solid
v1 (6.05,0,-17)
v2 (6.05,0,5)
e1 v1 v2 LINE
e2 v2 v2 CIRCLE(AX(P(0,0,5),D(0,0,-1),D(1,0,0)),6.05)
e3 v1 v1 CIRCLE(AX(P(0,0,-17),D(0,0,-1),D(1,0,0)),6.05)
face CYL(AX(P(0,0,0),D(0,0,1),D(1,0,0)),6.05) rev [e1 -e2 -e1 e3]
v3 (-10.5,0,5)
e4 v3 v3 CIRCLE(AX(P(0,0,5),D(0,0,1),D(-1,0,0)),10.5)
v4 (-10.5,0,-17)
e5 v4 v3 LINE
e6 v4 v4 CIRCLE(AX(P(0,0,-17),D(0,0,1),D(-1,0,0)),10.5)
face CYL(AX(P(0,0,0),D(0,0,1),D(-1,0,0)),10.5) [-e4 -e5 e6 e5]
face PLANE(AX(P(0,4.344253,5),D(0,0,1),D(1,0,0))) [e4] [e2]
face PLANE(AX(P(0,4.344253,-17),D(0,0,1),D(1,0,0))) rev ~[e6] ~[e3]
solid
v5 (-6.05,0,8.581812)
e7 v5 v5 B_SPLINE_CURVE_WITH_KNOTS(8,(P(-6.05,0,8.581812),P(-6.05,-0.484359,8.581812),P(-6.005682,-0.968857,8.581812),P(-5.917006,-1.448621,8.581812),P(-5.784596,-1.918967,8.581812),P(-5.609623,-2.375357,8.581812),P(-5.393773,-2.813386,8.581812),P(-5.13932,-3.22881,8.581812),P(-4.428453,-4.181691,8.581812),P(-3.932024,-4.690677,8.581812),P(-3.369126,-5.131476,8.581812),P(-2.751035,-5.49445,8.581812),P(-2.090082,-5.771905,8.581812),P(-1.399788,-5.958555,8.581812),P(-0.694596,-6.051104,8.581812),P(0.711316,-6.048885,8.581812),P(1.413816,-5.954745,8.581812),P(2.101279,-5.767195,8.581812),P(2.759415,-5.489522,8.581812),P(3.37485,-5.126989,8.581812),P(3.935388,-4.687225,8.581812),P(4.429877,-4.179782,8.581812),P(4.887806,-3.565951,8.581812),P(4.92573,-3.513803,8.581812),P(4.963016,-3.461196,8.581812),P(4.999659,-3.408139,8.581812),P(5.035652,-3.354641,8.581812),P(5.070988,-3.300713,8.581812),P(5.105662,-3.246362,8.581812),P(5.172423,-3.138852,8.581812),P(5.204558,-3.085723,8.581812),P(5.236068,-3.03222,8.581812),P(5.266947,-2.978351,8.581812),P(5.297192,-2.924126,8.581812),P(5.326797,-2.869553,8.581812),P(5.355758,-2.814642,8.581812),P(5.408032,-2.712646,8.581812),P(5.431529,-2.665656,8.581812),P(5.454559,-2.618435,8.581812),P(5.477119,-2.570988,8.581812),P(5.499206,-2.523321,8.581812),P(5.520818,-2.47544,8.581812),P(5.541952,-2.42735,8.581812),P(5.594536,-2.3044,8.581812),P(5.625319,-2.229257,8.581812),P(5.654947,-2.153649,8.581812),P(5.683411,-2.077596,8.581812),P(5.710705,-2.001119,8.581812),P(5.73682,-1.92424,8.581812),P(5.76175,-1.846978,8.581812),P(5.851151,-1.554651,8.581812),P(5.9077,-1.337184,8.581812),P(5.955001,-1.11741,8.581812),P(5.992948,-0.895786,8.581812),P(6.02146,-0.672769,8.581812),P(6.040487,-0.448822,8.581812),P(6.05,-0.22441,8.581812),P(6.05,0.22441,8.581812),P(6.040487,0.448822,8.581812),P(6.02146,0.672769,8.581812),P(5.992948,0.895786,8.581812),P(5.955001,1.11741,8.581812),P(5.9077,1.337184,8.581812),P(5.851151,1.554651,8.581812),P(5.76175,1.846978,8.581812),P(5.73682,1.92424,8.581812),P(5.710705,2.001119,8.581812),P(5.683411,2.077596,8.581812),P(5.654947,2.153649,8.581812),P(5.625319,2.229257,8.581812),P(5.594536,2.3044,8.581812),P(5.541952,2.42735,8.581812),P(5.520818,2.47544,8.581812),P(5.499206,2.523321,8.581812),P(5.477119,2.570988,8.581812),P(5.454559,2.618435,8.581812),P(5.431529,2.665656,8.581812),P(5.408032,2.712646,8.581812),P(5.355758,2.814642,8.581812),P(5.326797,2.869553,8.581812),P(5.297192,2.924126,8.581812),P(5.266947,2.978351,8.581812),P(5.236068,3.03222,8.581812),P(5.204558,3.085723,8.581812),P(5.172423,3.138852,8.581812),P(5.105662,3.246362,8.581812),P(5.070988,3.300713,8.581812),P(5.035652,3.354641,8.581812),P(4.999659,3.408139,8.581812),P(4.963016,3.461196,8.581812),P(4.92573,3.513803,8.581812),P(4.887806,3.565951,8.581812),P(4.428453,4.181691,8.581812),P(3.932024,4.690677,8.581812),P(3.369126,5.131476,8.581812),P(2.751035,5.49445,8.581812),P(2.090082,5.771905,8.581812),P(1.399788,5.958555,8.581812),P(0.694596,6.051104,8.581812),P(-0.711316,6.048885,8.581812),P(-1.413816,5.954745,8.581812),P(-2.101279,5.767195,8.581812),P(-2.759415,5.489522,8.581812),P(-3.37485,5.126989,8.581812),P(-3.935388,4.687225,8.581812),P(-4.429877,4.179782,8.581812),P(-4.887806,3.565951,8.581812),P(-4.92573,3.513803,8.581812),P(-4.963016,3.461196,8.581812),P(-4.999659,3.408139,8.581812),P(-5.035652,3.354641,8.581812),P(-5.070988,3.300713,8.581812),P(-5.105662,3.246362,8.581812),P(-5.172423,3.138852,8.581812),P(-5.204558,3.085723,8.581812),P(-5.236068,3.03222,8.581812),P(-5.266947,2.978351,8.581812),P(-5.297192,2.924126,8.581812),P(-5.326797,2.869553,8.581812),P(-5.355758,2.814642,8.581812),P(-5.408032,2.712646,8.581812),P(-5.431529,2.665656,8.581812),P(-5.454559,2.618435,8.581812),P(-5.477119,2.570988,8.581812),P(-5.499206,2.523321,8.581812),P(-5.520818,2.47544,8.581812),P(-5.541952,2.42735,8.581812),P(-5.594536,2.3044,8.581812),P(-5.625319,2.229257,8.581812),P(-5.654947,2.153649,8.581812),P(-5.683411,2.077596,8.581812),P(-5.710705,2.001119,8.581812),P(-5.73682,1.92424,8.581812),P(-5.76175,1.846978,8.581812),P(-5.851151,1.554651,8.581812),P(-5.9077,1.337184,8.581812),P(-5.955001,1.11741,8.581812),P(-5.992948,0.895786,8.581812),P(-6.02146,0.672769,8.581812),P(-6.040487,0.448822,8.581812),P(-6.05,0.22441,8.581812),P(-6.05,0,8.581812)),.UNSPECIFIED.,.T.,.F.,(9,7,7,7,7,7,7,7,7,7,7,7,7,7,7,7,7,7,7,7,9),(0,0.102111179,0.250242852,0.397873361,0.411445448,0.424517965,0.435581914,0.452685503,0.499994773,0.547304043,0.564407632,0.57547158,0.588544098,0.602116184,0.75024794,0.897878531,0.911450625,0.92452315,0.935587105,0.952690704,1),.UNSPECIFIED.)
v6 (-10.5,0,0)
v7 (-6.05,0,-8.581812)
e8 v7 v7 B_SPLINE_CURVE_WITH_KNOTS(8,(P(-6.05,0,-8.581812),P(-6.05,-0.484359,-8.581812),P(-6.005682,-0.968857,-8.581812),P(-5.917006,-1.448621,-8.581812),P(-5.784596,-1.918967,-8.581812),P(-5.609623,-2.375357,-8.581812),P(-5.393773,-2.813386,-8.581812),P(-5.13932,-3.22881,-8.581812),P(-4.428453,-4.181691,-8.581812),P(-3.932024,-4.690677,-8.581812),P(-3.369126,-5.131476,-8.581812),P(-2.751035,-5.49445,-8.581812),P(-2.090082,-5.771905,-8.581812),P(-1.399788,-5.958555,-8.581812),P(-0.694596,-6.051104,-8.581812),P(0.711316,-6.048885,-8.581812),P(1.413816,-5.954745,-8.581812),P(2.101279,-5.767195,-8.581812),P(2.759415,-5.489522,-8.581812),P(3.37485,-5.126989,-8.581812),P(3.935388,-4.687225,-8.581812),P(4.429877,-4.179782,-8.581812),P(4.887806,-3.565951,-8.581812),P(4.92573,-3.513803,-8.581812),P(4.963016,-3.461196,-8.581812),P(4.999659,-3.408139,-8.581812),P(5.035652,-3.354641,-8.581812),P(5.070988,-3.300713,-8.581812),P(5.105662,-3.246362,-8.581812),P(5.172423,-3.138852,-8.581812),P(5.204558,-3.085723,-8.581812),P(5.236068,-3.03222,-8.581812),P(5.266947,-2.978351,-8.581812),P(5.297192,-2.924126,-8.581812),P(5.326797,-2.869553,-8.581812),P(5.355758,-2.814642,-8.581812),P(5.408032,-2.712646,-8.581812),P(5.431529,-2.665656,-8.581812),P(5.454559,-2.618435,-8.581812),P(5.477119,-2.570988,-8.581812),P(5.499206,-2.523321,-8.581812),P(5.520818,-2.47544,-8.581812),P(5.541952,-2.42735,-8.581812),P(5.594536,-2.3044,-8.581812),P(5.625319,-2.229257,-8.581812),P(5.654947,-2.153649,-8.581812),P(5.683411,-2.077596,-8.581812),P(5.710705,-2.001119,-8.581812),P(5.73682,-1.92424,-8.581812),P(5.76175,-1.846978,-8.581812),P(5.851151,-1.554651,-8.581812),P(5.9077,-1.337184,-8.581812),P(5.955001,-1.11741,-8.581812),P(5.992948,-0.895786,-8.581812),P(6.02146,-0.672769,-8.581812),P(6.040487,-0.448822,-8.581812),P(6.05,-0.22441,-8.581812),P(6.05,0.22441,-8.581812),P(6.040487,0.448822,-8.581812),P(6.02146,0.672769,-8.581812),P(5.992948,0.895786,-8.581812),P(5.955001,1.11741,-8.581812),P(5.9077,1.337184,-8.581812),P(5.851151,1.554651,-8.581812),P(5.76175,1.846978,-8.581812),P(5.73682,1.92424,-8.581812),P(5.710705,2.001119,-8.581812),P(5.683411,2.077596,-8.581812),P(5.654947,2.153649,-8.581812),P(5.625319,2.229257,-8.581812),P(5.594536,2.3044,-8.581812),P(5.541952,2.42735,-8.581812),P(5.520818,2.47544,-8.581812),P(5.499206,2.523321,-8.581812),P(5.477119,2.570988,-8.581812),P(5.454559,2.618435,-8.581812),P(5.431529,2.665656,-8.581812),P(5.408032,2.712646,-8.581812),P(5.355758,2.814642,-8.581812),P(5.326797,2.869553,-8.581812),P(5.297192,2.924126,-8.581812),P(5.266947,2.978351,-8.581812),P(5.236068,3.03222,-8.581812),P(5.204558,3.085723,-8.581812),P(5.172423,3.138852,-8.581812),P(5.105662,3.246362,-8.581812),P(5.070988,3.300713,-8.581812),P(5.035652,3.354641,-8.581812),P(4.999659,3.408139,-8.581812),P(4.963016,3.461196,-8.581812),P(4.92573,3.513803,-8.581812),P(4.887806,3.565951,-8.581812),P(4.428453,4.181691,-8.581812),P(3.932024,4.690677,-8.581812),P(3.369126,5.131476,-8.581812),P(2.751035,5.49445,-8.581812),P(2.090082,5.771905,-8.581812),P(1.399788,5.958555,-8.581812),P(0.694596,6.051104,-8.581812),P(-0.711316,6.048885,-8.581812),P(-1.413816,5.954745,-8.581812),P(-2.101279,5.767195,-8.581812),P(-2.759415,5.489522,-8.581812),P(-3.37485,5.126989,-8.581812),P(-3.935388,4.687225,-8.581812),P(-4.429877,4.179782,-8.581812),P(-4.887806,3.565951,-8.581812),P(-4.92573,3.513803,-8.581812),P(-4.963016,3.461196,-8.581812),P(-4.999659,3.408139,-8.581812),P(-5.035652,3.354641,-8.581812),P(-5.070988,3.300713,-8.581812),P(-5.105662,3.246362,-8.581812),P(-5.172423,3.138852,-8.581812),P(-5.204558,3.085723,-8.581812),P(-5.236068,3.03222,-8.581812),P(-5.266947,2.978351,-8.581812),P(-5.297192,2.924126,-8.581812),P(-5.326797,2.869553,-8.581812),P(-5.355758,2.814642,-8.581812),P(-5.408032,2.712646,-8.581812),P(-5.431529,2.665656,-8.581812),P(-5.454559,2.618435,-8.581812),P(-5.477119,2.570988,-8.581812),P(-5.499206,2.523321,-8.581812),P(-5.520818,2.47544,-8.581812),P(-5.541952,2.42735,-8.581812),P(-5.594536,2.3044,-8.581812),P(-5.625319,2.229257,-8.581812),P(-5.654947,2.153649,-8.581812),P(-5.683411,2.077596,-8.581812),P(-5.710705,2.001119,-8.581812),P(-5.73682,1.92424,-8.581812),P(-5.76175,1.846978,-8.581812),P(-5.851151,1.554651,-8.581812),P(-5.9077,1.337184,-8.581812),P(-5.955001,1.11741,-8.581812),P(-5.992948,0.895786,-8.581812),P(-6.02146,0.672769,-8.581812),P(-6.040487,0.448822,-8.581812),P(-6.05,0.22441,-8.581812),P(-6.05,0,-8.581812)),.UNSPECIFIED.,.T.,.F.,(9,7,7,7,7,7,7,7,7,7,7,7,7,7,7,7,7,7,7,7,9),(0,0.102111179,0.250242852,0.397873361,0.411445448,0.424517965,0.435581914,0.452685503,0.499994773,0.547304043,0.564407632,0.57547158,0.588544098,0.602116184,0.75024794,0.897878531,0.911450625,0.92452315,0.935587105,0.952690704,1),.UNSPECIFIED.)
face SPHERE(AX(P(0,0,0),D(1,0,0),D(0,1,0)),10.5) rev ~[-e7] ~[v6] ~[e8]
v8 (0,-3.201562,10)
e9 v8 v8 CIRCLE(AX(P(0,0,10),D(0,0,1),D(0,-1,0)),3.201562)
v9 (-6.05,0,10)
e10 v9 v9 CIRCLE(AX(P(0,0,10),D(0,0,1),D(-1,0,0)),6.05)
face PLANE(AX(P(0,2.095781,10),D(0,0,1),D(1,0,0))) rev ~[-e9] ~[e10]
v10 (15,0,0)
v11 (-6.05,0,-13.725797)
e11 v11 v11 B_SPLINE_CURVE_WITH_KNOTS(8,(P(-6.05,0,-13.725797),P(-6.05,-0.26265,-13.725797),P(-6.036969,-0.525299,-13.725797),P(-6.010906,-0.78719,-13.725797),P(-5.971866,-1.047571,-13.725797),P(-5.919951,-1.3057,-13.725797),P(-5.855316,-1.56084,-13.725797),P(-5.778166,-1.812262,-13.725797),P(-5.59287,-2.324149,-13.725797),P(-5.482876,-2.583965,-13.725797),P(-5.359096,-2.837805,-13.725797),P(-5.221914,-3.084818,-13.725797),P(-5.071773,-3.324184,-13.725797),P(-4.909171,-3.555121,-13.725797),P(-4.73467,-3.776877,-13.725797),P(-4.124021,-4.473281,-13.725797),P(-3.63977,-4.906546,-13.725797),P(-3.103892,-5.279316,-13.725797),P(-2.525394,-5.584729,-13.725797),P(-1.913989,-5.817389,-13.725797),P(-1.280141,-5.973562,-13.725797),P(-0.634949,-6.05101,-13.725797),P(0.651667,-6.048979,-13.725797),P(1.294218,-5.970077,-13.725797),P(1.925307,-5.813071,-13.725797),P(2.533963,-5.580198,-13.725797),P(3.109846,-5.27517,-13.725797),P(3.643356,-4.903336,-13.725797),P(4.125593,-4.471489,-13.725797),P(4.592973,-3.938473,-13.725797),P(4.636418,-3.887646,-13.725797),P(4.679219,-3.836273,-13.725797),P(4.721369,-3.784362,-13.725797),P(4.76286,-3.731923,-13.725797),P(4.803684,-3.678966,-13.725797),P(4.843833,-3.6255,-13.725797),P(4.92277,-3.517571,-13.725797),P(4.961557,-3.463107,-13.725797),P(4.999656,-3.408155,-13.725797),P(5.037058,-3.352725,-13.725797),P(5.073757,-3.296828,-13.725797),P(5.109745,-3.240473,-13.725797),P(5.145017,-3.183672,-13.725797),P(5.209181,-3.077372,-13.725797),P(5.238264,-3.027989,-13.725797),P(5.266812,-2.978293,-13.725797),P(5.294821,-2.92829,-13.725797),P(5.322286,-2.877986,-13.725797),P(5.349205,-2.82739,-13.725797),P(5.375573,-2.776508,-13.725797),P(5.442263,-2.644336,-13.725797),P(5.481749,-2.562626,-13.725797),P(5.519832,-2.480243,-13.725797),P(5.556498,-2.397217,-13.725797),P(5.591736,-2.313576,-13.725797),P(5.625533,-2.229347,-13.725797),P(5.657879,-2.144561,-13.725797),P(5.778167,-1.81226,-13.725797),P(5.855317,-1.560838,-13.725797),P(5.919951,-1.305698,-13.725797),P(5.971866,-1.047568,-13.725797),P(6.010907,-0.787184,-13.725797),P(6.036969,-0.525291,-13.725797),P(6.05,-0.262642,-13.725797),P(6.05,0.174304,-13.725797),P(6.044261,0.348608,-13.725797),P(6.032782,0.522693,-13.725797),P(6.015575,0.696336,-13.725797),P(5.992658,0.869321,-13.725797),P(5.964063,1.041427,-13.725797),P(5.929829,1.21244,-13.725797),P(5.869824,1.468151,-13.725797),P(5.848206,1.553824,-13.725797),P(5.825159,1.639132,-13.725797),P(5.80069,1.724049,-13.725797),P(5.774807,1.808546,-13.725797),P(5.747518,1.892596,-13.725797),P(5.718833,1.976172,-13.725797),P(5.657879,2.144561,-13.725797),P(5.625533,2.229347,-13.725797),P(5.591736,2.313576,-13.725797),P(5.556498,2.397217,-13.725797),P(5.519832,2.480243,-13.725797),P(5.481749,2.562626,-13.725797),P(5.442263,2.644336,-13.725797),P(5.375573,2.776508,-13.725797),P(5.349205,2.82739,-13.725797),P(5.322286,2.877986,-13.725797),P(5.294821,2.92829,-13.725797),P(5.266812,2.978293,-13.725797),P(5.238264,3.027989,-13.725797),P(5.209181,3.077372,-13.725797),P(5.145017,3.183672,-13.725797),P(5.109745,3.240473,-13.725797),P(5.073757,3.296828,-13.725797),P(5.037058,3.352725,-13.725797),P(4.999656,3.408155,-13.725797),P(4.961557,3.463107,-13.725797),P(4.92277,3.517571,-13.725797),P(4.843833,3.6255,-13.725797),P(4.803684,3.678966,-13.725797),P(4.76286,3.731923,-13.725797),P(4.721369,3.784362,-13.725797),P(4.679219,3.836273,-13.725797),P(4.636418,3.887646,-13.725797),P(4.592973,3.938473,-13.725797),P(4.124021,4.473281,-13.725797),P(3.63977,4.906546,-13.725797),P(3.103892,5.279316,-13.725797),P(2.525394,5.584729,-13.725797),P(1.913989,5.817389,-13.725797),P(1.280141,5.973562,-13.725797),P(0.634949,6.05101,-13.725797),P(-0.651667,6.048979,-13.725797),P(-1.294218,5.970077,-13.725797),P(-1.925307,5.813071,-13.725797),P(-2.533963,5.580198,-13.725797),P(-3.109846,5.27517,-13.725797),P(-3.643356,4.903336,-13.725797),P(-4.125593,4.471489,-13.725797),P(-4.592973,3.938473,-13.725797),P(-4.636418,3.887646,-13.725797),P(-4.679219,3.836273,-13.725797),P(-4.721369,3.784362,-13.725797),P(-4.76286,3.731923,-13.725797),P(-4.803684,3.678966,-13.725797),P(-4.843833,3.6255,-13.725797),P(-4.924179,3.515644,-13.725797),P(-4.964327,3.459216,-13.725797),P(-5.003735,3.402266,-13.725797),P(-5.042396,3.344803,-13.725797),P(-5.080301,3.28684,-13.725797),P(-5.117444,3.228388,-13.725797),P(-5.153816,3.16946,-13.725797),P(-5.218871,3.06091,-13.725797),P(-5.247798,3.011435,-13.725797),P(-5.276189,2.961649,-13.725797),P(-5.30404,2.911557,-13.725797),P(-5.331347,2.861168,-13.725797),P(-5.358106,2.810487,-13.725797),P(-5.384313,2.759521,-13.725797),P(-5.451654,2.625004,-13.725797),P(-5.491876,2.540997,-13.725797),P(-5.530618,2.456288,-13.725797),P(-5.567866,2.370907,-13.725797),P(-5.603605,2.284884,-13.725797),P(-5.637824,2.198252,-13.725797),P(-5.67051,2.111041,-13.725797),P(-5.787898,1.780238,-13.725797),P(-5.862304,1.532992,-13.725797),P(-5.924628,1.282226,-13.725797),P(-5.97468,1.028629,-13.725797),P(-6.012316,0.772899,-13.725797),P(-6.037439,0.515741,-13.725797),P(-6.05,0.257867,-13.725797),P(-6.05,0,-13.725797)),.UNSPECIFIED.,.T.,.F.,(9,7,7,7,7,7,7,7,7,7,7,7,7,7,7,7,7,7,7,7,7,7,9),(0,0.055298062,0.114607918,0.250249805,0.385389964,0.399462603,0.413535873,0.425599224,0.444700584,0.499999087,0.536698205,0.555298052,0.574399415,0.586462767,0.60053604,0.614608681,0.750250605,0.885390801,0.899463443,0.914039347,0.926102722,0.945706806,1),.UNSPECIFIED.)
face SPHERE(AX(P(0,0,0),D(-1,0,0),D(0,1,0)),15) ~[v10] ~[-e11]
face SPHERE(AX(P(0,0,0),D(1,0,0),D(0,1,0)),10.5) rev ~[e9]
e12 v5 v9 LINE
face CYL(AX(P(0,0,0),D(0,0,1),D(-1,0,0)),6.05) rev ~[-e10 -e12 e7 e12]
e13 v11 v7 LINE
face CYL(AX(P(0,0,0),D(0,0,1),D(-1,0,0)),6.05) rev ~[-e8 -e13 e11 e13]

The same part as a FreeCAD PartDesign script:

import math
import FreeCAD as App
import Part
import Sketcher
from FreeCAD import Vector
Q = App.Units.Quantity

doc = App.newDocument("Part")
params = doc.addObject("Spreadsheet::Sheet", "Params")
for row, (alias, value) in enumerate([
    ("sketch1_diameter", "21 mm"),
    ("sketch1_diameter2", "12.1 mm"),
    ("pad1_length", "5 mm"),
    ("pad1_length2", "17 mm"),
    ("sketch2_diameter", "12.1 mm"),
    ("pad2_length", "10 mm"),
    ("pad2_length2", "25 mm"),
    ("sketch3_radius", "15 mm"),
    ("sketch3_radius2", "10.5 mm"),
    ("revolution_angle", "360 deg"),
], start=1):
    params.set(f"A{row}", alias)
    params.set(f"B{row}", "=" + value)
    params.setAlias(f"B{row}", alias)

body = doc.addObject("PartDesign::Body", "Body")

# Sketch on XY plane
sketch1 = body.newObject("Sketcher::SketchObject", "Sketch")
sketch1.AttachmentSupport = (doc.getObject("XY_Plane"), [""])
sketch1.MapMode = "FlatFace"
sketch1.addGeometry([
    Part.Circle(Vector(0, 0, 0), Vector(0, 0, 1), 10),
    Part.Circle(Vector(0, 0, 0), Vector(0, 0, 1), 6),
], False)
sketch1.addConstraint([
    Sketcher.Constraint("Coincident", 0, 3, -1, 1),
    Sketcher.Constraint("Coincident", 1, 3, -1, 1),
    Sketcher.Constraint("Diameter", 0, Q("21 mm")),
    Sketcher.Constraint("Diameter", 1, Q("12.1 mm")),
])
sketch1.setExpression("Constraints[2]", "Params.sketch1_diameter")
sketch1.setExpression("Constraints[3]", "Params.sketch1_diameter2")
pad1 = body.newObject("PartDesign::Pad", "Pad")
pad1.Profile = sketch1
pad1.Type = "TwoLengths"
pad1.setExpression("Length", "Params.pad1_length")
pad1.setExpression("Length2", "Params.pad1_length2")
body2 = doc.addObject("PartDesign::Body", "Body001")

# Sketch on XY plane
sketch2 = body2.newObject("Sketcher::SketchObject", "Sketch001")
sketch2.AttachmentSupport = (doc.getObject("XY_Plane001"), [""])
sketch2.MapMode = "FlatFace"
sketch2.addGeometry(Part.Circle(Vector(0, 0, 0), Vector(0, 0, 1), 6), False)
sketch2.addConstraint([
    Sketcher.Constraint("Coincident", 0, 3, -1, 1),
    Sketcher.Constraint("Diameter", 0, Q("12.1 mm")),
])
sketch2.setExpression("Constraints[1]", "Params.sketch2_diameter")
pad2 = body2.newObject("PartDesign::Pad", "Pad001")
pad2.Profile = sketch2
pad2.Type = "TwoLengths"
pad2.setExpression("Length", "Params.pad2_length")
pad2.setExpression("Length2", "Params.pad2_length2")
body3 = doc.addObject("PartDesign::Body", "Body002")

# Sketch on XY plane
sketch3 = body3.newObject("Sketcher::SketchObject", "Sketch002")
sketch3.AttachmentSupport = (doc.getObject("XY_Plane002"), [""])
sketch3.MapMode = "FlatFace"
sketch3.addGeometry([
    Part.LineSegment(Vector(10.5, 0, 0), Vector(15, 0, 0)),
    Part.ArcOfCircle(Part.Circle(Vector(0, 0, 0), Vector(0, 0, 1), 15), math.radians(0), math.radians(180)),
    Part.LineSegment(Vector(-15, 0, 0), Vector(-10.5, 0, 0)),
    Part.ArcOfCircle(Part.Circle(Vector(0, 0, 0), Vector(0, 0, 1), 10.5), math.radians(0), math.radians(180)),
], False)
sketch3.addConstraint([
    Sketcher.Constraint("Coincident", 0, 2, 1, 1),
    Sketcher.Constraint("Coincident", 1, 2, 2, 1),
    Sketcher.Constraint("Coincident", 2, 2, 3, 2),
    Sketcher.Constraint("Coincident", 3, 1, 0, 1),
    Sketcher.Constraint("Horizontal", 0),
    Sketcher.Constraint("Horizontal", 2),
    Sketcher.Constraint("Coincident", 1, 3, -1, 1),
    Sketcher.Constraint("Coincident", 3, 3, -1, 1),
    Sketcher.Constraint("PointOnObject", 0, 2, -1),
    Sketcher.Constraint("PointOnObject", 1, 2, -1),
    Sketcher.Constraint("Radius", 1, Q("15 mm")),
    Sketcher.Constraint("Radius", 3, Q("10.5 mm")),
])
sketch3.setExpression("Constraints[10]", "Params.sketch3_radius")
sketch3.setExpression("Constraints[11]", "Params.sketch3_radius2")
revolution = body3.newObject("PartDesign::Revolution", "Revolution")
revolution.Profile = sketch3
revolution.ReferenceAxis = (sketch3, ["H_Axis"])
revolution.setExpression("Angle", "Params.revolution_angle")
doc.recompute()

body4 = doc.addObject("PartDesign::Body", "Body003")
body4.BaseFeature = body2
boolean = body3.newObject("PartDesign::Boolean", "Boolean")
boolean.Type = "Cut"
boolean.addObjects([body4])
doc.recompute()

boolean2 = body.newObject("PartDesign::Boolean", "Boolean001")
boolean2.Type = "Cut"
boolean2.addObjects([body2])

doc.recompute()
